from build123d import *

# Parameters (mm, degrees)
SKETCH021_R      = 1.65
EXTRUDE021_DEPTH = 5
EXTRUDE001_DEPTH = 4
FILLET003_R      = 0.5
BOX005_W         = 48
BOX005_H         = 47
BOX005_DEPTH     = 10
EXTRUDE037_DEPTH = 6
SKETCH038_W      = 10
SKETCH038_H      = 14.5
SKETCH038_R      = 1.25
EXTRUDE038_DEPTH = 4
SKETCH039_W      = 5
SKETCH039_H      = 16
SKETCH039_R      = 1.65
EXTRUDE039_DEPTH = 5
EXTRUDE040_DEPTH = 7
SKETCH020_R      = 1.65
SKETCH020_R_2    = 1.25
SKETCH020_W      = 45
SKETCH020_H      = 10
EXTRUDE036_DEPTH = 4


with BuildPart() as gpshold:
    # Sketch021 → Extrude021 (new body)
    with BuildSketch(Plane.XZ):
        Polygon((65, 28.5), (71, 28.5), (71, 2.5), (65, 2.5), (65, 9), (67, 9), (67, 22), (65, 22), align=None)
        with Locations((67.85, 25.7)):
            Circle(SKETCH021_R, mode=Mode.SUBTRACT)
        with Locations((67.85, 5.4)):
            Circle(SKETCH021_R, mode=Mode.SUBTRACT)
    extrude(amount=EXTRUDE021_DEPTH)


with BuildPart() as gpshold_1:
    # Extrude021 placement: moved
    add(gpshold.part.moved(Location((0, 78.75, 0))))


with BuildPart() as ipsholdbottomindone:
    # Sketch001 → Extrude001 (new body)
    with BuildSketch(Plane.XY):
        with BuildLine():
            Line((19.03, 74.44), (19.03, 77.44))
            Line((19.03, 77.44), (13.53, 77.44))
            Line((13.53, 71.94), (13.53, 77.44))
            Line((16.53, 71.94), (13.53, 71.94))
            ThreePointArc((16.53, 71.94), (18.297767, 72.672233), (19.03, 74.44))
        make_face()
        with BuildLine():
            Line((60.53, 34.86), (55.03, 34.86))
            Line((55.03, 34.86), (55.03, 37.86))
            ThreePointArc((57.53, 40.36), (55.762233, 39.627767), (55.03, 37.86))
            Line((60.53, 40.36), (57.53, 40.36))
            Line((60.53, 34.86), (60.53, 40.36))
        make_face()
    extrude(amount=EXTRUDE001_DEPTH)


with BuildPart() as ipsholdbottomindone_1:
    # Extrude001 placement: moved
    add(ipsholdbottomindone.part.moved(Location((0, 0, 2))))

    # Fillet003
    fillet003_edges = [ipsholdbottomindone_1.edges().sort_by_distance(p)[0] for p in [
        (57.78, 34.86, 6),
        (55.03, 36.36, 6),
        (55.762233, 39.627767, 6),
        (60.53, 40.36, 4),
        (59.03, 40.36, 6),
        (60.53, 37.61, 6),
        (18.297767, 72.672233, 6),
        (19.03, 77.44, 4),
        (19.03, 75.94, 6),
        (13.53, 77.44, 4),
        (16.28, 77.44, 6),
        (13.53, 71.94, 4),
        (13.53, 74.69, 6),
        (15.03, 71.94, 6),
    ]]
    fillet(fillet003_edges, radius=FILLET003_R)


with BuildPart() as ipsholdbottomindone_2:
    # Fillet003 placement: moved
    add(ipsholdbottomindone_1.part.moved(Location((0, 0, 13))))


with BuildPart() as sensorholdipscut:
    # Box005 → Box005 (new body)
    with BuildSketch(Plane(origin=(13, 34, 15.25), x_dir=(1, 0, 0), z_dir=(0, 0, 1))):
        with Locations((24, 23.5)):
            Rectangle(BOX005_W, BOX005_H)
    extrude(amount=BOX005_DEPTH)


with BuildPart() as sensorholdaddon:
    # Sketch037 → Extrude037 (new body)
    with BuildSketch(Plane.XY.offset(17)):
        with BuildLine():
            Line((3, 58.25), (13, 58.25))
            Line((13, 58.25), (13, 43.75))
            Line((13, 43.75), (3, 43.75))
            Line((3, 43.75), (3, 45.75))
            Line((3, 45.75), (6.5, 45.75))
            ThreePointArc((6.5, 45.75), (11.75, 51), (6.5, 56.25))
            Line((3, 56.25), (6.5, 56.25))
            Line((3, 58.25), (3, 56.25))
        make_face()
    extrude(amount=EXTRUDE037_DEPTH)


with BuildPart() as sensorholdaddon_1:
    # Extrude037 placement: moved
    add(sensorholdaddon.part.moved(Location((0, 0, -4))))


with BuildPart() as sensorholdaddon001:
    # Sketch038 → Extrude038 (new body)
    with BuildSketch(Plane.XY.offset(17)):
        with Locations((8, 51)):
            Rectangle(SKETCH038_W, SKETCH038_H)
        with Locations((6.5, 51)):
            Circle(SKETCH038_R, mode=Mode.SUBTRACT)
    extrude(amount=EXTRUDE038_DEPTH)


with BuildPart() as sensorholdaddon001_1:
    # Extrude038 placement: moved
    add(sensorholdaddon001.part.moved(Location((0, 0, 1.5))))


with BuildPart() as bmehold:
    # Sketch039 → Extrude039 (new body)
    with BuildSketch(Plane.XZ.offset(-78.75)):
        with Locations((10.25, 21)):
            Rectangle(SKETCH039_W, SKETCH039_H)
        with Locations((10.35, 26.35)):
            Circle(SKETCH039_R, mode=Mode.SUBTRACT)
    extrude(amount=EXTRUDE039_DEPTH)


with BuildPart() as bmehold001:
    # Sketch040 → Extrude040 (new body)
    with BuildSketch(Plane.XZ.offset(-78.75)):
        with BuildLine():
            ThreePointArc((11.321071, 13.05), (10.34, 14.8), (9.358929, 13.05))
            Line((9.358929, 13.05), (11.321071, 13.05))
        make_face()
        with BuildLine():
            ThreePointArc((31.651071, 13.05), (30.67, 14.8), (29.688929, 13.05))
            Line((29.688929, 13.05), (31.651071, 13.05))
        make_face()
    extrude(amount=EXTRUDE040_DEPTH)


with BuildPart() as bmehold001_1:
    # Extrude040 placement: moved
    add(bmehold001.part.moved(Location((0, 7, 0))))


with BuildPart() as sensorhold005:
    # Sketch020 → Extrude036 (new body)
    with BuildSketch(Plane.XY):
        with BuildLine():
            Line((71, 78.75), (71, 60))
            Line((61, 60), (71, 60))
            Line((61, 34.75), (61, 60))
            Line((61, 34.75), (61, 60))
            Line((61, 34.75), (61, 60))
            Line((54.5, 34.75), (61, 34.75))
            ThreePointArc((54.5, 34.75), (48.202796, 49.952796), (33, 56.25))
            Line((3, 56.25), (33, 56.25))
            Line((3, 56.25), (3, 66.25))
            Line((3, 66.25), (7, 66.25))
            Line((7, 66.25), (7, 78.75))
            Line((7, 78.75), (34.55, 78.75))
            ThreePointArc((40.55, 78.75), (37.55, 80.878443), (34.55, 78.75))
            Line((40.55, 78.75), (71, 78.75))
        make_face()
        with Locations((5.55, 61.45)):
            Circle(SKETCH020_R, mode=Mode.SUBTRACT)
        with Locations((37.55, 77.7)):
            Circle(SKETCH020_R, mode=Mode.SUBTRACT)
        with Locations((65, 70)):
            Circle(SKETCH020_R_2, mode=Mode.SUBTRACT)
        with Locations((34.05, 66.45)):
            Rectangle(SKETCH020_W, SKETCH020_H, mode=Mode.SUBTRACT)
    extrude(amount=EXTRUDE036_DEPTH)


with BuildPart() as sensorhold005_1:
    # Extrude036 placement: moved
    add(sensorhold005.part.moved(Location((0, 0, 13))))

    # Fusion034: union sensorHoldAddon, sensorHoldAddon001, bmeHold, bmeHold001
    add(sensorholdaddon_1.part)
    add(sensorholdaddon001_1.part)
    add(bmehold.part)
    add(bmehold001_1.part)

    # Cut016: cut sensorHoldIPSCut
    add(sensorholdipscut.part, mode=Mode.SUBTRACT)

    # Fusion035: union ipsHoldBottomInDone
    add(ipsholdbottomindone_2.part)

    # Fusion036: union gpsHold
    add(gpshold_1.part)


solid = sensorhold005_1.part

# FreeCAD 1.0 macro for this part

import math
import FreeCAD as App
import Part
import Sketcher

V = App.Vector


def edges_at(feature, points):
    """Names of the edges that pass closest to the given points."""
    edges = feature.Shape.Edges
    near = lambda p: min(range(len(edges)), key=lambda i: edges[i].distToShape(Part.Vertex(*p))[0])
    return sorted({f"Edge{near(p) + 1}" for p in points})


def add_polygon(sketch, points):
    """Adds a closed chain of lines whose ends are joined by coincident constraints."""
    first, n = sketch.GeometryCount, len(points)
    for a, b in zip(points, points[1:] + points[:1]):
        sketch.addGeometry(Part.LineSegment(App.Vector(*a, 0), App.Vector(*b, 0)), False)
    for i in range(n):
        sketch.addConstraint(Sketcher.Constraint("Coincident", first + i, 2, first + (i + 1) % n, 1))

doc = App.newDocument("Part")
params = doc.addObject("Spreadsheet::Sheet", "Params")
for row, (alias, value) in enumerate([
    ("sketch1_diameter", "3.3 mm"),
    ("sketch1_width", "6 mm"),
    ("sketch1_width2", "2 mm"),
    ("sketch1_height", "13 mm"),
    ("sketch1_height2", "26 mm"),
    ("pad1_length", "5 mm"),
    ("sketch2_radius", "2.5 mm"),
    ("sketch2_width", "3 mm"),
    ("pad2_length", "4 mm"),
    ("fillet_radius", "0.5 mm"),
    ("sketch3_width", "48 mm"),
    ("sketch3_height", "47 mm"),
    ("pad3_length", "10 mm"),
    ("sketch4_width", "10 mm"),
    ("sketch4_height", "2 mm"),
    ("sketch4_radius", "5.25 mm"),
    ("sketch4_width2", "3.5 mm"),
    ("pad4_length", "6 mm"),
    ("sketch5_diameter", "2.5 mm"),
    ("sketch5_width", "10 mm"),
    ("sketch5_height", "14.5 mm"),
    ("pad5_length", "4 mm"),
    ("sketch6_diameter", "3.3 mm"),
    ("sketch6_width", "5 mm"),
    ("sketch6_height", "16 mm"),
    ("pad6_length", "5 mm"),
    ("sketch7_radius", "1.15 mm"),
    ("sketch7_height", "0.6 mm"),
    ("pad7_length", "7 mm"),
    ("sketch8_diameter", "3.3 mm"),
    ("sketch8_diameter2", "2.5 mm"),
    ("sketch8_radius", "21.499999 mm"),
    ("sketch8_width", "4 mm"),
    ("sketch8_width2", "30 mm"),
    ("pad8_length", "4 mm"),
], start=1):
    params.set(f"A{row}", alias)
    params.set(f"B{row}", "=" + value)
    params.setAlias(f"B{row}", alias)

body = doc.addObject("PartDesign::Body", "Body")

sketch1 = body.newObject("Sketcher::SketchObject", "Sketch")
sketch1.AttachmentSupport = (doc.getObject("XZ_Plane"), [""])
sketch1.MapMode = "FlatFace"
add_polygon(sketch1, [(71, 28.5), (65, 28.5), (65, 22), (67, 22), (67, 9), (65, 9), (65, 2.5), (71, 2.5)])
sketch1.addGeometry(Part.Circle(V(67.8, 5.4, 0), V(0, 0, 1), 1.6), False)
sketch1.addGeometry(Part.Circle(V(67.8, 25.7, 0), V(0, 0, 1), 1.6), False)
sketch1.addConstraint(Sketcher.Constraint("Horizontal", 0))
sketch1.addConstraint(Sketcher.Constraint("Vertical", 1))
sketch1.addConstraint(Sketcher.Constraint("Horizontal", 2))
sketch1.addConstraint(Sketcher.Constraint("Vertical", 3))
sketch1.addConstraint(Sketcher.Constraint("Horizontal", 4))
sketch1.addConstraint(Sketcher.Constraint("Vertical", 5))
sketch1.addConstraint(Sketcher.Constraint("Horizontal", 6))
sketch1.addConstraint(Sketcher.Constraint("Vertical", 7))
sketch1.addConstraint(Sketcher.Constraint("Equal", 8, 9))
sketch1.addConstraint(Sketcher.Constraint("Vertical", 8, 3, 9, 3))
sketch1.addConstraint(Sketcher.Constraint("Vertical", 1, 2, 4, 2))
sketch1.addConstraint(Sketcher.Constraint("Equal", 1, 5))
sketch1.addConstraint(Sketcher.Constraint("Diameter", 8, 3.3))
sketch1.addConstraint(Sketcher.Constraint("DistanceX", 0, 2, 0, 1, 6.0))
sketch1.addConstraint(Sketcher.Constraint("DistanceX", 2, 1, 2, 2, 2.0))
sketch1.addConstraint(Sketcher.Constraint("DistanceY", 3, 2, 3, 1, 13.0))
sketch1.addConstraint(Sketcher.Constraint("DistanceY", 7, 1, 7, 2, 26.0))
sketch1.addConstraint(Sketcher.Constraint("DistanceX", -1, 1, 0, 2, 65.0))
sketch1.addConstraint(Sketcher.Constraint("DistanceY", -1, 1, 1, 2, 22.0))
sketch1.addConstraint(Sketcher.Constraint("DistanceY", -1, 1, 8, 3, 5.4))
sketch1.addConstraint(Sketcher.Constraint("DistanceY", -1, 1, 9, 3, 25.7))
sketch1.addConstraint(Sketcher.Constraint("DistanceX", -1, 1, 8, 3, 67.85))
sketch1.setExpression("Constraints[20]", "Params.sketch1_diameter")
sketch1.setExpression("Constraints[21]", "Params.sketch1_width")
sketch1.setExpression("Constraints[22]", "Params.sketch1_width2")
sketch1.setExpression("Constraints[23]", "Params.sketch1_height")
sketch1.setExpression("Constraints[24]", "Params.sketch1_height2")
pad1 = body.newObject("PartDesign::Pad", "Pad")
pad1.Profile = sketch1
pad1.setExpression("Length", "Params.pad1_length")
body2 = doc.addObject("PartDesign::Body", "Body001")
doc.recompute()

body.Placement = App.Placement(V(0, 78.75, 0), App.Rotation(V(0, 0, 1), 0))
boolean = body2.newObject("PartDesign::Boolean", "Boolean")
boolean.Type = "Fuse"
boolean.addObjects([body])
body3 = doc.addObject("PartDesign::Body", "Body002")
body3.AllowCompound = True

sketch2 = body3.newObject("Sketcher::SketchObject", "Sketch001")
sketch2.AttachmentSupport = (doc.getObject("XY_Plane002"), [""])
sketch2.MapMode = "FlatFace"
sketch2.addGeometry(Part.LineSegment(V(19, 74.4, 0), V(19, 77.4, 0)), False)
sketch2.addGeometry(Part.LineSegment(V(19, 77.4, 0), V(13.5, 77.4, 0)), False)
sketch2.addGeometry(Part.LineSegment(V(13.5, 77.4, 0), V(13.5, 71.9, 0)), False)
sketch2.addGeometry(Part.LineSegment(V(13.5, 71.9, 0), V(16.5, 71.9, 0)), False)
sketch2.addGeometry(Part.ArcOfCircle(Part.Circle(V(16.5, 74.4, 0), V(0, 0, 1), 2.5), math.radians(-90), math.radians(0)), False)
sketch2.addGeometry(Part.LineSegment(V(55, 34.9, 0), V(60.5, 34.9, 0)), False)
sketch2.addGeometry(Part.LineSegment(V(60.5, 34.9, 0), V(60.5, 40.4, 0)), False)
sketch2.addGeometry(Part.LineSegment(V(60.5, 40.4, 0), V(57.5, 40.4, 0)), False)
sketch2.addGeometry(Part.ArcOfCircle(Part.Circle(V(57.5, 37.9, 0), V(0, 0, 1), 2.5), math.radians(90), math.radians(180)), False)
sketch2.addGeometry(Part.LineSegment(V(55, 37.9, 0), V(55, 34.9, 0)), False)
sketch2.addConstraint(Sketcher.Constraint("Coincident", 0, 2, 1, 1))
sketch2.addConstraint(Sketcher.Constraint("Coincident", 1, 2, 2, 1))
sketch2.addConstraint(Sketcher.Constraint("Coincident", 2, 2, 3, 1))
sketch2.addConstraint(Sketcher.Constraint("Tangent", 3, 2, 4, 1))
sketch2.addConstraint(Sketcher.Constraint("Tangent", 4, 2, 0, 1))
sketch2.addConstraint(Sketcher.Constraint("Coincident", 5, 2, 6, 1))
sketch2.addConstraint(Sketcher.Constraint("Coincident", 6, 2, 7, 1))
sketch2.addConstraint(Sketcher.Constraint("Tangent", 7, 2, 8, 1))
sketch2.addConstraint(Sketcher.Constraint("Tangent", 8, 2, 9, 1))
sketch2.addConstraint(Sketcher.Constraint("Coincident", 9, 2, 5, 1))
sketch2.addConstraint(Sketcher.Constraint("Vertical", 0))
sketch2.addConstraint(Sketcher.Constraint("Horizontal", 1))
sketch2.addConstraint(Sketcher.Constraint("Vertical", 2))
sketch2.addConstraint(Sketcher.Constraint("Horizontal", 3))
sketch2.addConstraint(Sketcher.Constraint("Horizontal", 5))
sketch2.addConstraint(Sketcher.Constraint("Vertical", 6))
sketch2.addConstraint(Sketcher.Constraint("Horizontal", 7))
sketch2.addConstraint(Sketcher.Constraint("Vertical", 9))
sketch2.addConstraint(Sketcher.Constraint("Equal", 4, 8))
sketch2.addConstraint(Sketcher.Constraint("Equal", 1, 5))
sketch2.addConstraint(Sketcher.Constraint("Equal", 7, 0))
sketch2.addConstraint(Sketcher.Constraint("Equal", 2, 6))
sketch2.addConstraint(Sketcher.Constraint("Radius", 4, 2.5))
sketch2.addConstraint(Sketcher.Constraint("DistanceX", 3, 1, 3, 2, 3.0))
sketch2.addConstraint(Sketcher.Constraint("DistanceX", 4, 3, 8, 3, 41.0))
sketch2.addConstraint(Sketcher.Constraint("DistanceX", -1, 1, 4, 3, 16.53))
sketch2.addConstraint(Sketcher.Constraint("DistanceY", -1, 1, 4, 3, 74.44))
sketch2.addConstraint(Sketcher.Constraint("DistanceY", -1, 1, 8, 3, 37.86))
sketch2.setExpression("Constraints[22]", "Params.sketch2_radius")
sketch2.setExpression("Constraints[23]", "Params.sketch2_width")
pad2 = body3.newObject("PartDesign::Pad", "Pad001")
pad2.Profile = sketch2
pad2.setExpression("Length", "Params.pad2_length")
body4 = doc.addObject("PartDesign::Body", "Body003")
body4.AllowCompound = True
doc.recompute()

body3.Placement = App.Placement(V(0, 0, 2), App.Rotation(V(0, 0, 1), 0))
boolean2 = body4.newObject("PartDesign::Boolean", "Boolean001")
boolean2.Type = "Fuse"
boolean2.addObjects([body3])
doc.recompute()

fillet = body4.newObject("PartDesign::Fillet", "Fillet")
fillet.Base = (boolean2, edges_at(boolean2, [
    (57.78, 34.86, 6),
    (55.03, 36.36, 6),
    (55.762, 39.628, 6),
    (60.53, 40.36, 4),
    (59.03, 40.36, 6),
    (60.53, 37.61, 6),
    (18.298, 72.672, 6),
    (19.03, 77.44, 4),
    (19.03, 75.94, 6),
    (13.53, 77.44, 4),
    (16.28, 77.44, 6),
    (13.53, 71.94, 4),
    (13.53, 74.69, 6),
    (15.03, 71.94, 6),
]))
fillet.setExpression("Radius", "Params.fillet_radius")
body5 = doc.addObject("PartDesign::Body", "Body004")
body5.AllowCompound = True
doc.recompute()

body4.Placement = App.Placement(V(0, 0, 13), App.Rotation(V(0, 0, 1), 0))
boolean3 = body5.newObject("PartDesign::Boolean", "Boolean002")
boolean3.Type = "Fuse"
boolean3.addObjects([body4])
body6 = doc.addObject("PartDesign::Body", "Body005")

sketch3 = body6.newObject("Sketcher::SketchObject", "Sketch002")
sketch3.AttachmentSupport = (doc.getObject("XY_Plane005"), [""])
sketch3.MapMode = "FlatFace"
sketch3.AttachmentOffset = App.Placement(V(0, 0, 15.25), App.Rotation())
add_polygon(sketch3, [(13, 81), (13, 34), (61, 34), (61, 81)])
sketch3.addConstraint(Sketcher.Constraint("Vertical", 0))
sketch3.addConstraint(Sketcher.Constraint("Horizontal", 1))
sketch3.addConstraint(Sketcher.Constraint("Vertical", 2))
sketch3.addConstraint(Sketcher.Constraint("Horizontal", 3))
sketch3.addConstraint(Sketcher.Constraint("DistanceX", 1, 1, 1, 2, 48.0))
sketch3.addConstraint(Sketcher.Constraint("DistanceY", 0, 2, 0, 1, 47.0))
sketch3.addConstraint(Sketcher.Constraint("DistanceX", -1, 1, 0, 2, 13.0))
sketch3.addConstraint(Sketcher.Constraint("DistanceY", -1, 1, 0, 2, 34.0))
sketch3.setExpression("Constraints[8]", "Params.sketch3_width")
sketch3.setExpression("Constraints[9]", "Params.sketch3_height")
pad3 = body6.newObject("PartDesign::Pad", "Pad002")
pad3.Profile = sketch3
pad3.setExpression("Length", "Params.pad3_length")
body7 = doc.addObject("PartDesign::Body", "Body006")

sketch4 = body7.newObject("Sketcher::SketchObject", "Sketch003")
sketch4.AttachmentSupport = (doc.getObject("XY_Plane006"), [""])
sketch4.MapMode = "FlatFace"
sketch4.AttachmentOffset = App.Placement(V(0, 0, 17), App.Rotation())
sketch4.addGeometry(Part.LineSegment(V(13, 58.2, 0), V(3, 58.2, 0)), False)
sketch4.addGeometry(Part.LineSegment(V(3, 58.2, 0), V(3, 56.2, 0)), False)
sketch4.addGeometry(Part.LineSegment(V(3, 56.2, 0), V(6.5, 56.2, 0)), False)
sketch4.addGeometry(Part.ArcOfCircle(Part.Circle(V(6.5, 51, 0), V(0, 0, 1), 5.2), math.radians(-90), math.radians(90)), False)
sketch4.addGeometry(Part.LineSegment(V(6.5, 45.8, 0), V(3, 45.8, 0)), False)
sketch4.addGeometry(Part.LineSegment(V(3, 45.8, 0), V(3, 43.8, 0)), False)
sketch4.addGeometry(Part.LineSegment(V(3, 43.8, 0), V(13, 43.8, 0)), False)
sketch4.addGeometry(Part.LineSegment(V(13, 43.8, 0), V(13, 58.2, 0)), False)
sketch4.addConstraint(Sketcher.Constraint("Coincident", 0, 2, 1, 1))
sketch4.addConstraint(Sketcher.Constraint("Coincident", 1, 2, 2, 1))
sketch4.addConstraint(Sketcher.Constraint("Tangent", 2, 2, 3, 2))
sketch4.addConstraint(Sketcher.Constraint("Tangent", 3, 1, 4, 1))
sketch4.addConstraint(Sketcher.Constraint("Coincident", 4, 2, 5, 1))
sketch4.addConstraint(Sketcher.Constraint("Coincident", 5, 2, 6, 1))
sketch4.addConstraint(Sketcher.Constraint("Coincident", 6, 2, 7, 1))
sketch4.addConstraint(Sketcher.Constraint("Coincident", 7, 2, 0, 1))
sketch4.addConstraint(Sketcher.Constraint("Horizontal", 0))
sketch4.addConstraint(Sketcher.Constraint("Vertical", 1))
sketch4.addConstraint(Sketcher.Constraint("Horizontal", 2))
sketch4.addConstraint(Sketcher.Constraint("Horizontal", 4))
sketch4.addConstraint(Sketcher.Constraint("Vertical", 5))
sketch4.addConstraint(Sketcher.Constraint("Horizontal", 6))
sketch4.addConstraint(Sketcher.Constraint("Vertical", 7))
sketch4.addConstraint(Sketcher.Constraint("Vertical", 1, 2, 4, 2))
sketch4.addConstraint(Sketcher.Constraint("Equal", 1, 5))
sketch4.addConstraint(Sketcher.Constraint("DistanceX", 0, 2, 0, 1, 10.0))
sketch4.addConstraint(Sketcher.Constraint("DistanceY", 1, 2, 1, 1, 2.0))
sketch4.addConstraint(Sketcher.Constraint("Radius", 3, 5.25))
sketch4.addConstraint(Sketcher.Constraint("DistanceX", 2, 1, 2, 2, 3.5))
sketch4.addConstraint(Sketcher.Constraint("DistanceY", -1, 1, 3, 3, 51.0))
sketch4.addConstraint(Sketcher.Constraint("DistanceX", -1, 1, 0, 2, 3.0))
sketch4.setExpression("Constraints[17]", "Params.sketch4_width")
sketch4.setExpression("Constraints[18]", "Params.sketch4_height")
sketch4.setExpression("Constraints[19]", "Params.sketch4_radius")
sketch4.setExpression("Constraints[20]", "Params.sketch4_width2")
pad4 = body7.newObject("PartDesign::Pad", "Pad003")
pad4.Profile = sketch4
pad4.setExpression("Length", "Params.pad4_length")
body8 = doc.addObject("PartDesign::Body", "Body007")
doc.recompute()

body7.Placement = App.Placement(V(0, 0, -4), App.Rotation(V(0, 0, 1), 0))
boolean4 = body8.newObject("PartDesign::Boolean", "Boolean003")
boolean4.Type = "Fuse"
boolean4.addObjects([body7])
body9 = doc.addObject("PartDesign::Body", "Body008")

sketch5 = body9.newObject("Sketcher::SketchObject", "Sketch004")
sketch5.AttachmentSupport = (doc.getObject("XY_Plane008"), [""])
sketch5.MapMode = "FlatFace"
sketch5.AttachmentOffset = App.Placement(V(0, 0, 17), App.Rotation())
add_polygon(sketch5, [(3, 58.2), (3, 43.8), (13, 43.8), (13, 58.2)])
sketch5.addGeometry(Part.Circle(V(6.5, 51, 0), V(0, 0, 1), 1.2), False)
sketch5.addConstraint(Sketcher.Constraint("Vertical", 0))
sketch5.addConstraint(Sketcher.Constraint("Horizontal", 1))
sketch5.addConstraint(Sketcher.Constraint("Vertical", 2))
sketch5.addConstraint(Sketcher.Constraint("Horizontal", 3))
sketch5.addConstraint(Sketcher.Constraint("Diameter", 4, 2.5))
sketch5.addConstraint(Sketcher.Constraint("DistanceX", 1, 1, 1, 2, 10.0))
sketch5.addConstraint(Sketcher.Constraint("DistanceY", 0, 2, 0, 1, 14.5))
sketch5.addConstraint(Sketcher.Constraint("DistanceY", -1, 1, 4, 3, 51.0))
sketch5.addConstraint(Sketcher.Constraint("DistanceX", -1, 1, 0, 2, 3.0))
sketch5.addConstraint(Sketcher.Constraint("DistanceX", -1, 1, 4, 3, 6.5))
sketch5.addConstraint(Sketcher.Constraint("DistanceY", -1, 1, 0, 2, 43.75))
sketch5.setExpression("Constraints[8]", "Params.sketch5_diameter")
sketch5.setExpression("Constraints[9]", "Params.sketch5_width")
sketch5.setExpression("Constraints[10]", "Params.sketch5_height")
pad5 = body9.newObject("PartDesign::Pad", "Pad004")
pad5.Profile = sketch5
pad5.setExpression("Length", "Params.pad5_length")
body10 = doc.addObject("PartDesign::Body", "Body009")
doc.recompute()

body9.Placement = App.Placement(V(0, 0, 1.5), App.Rotation(V(0, 0, 1), 0))
boolean5 = body10.newObject("PartDesign::Boolean", "Boolean004")
boolean5.Type = "Fuse"
boolean5.addObjects([body9])
body11 = doc.addObject("PartDesign::Body", "Body010")

sketch6 = body11.newObject("Sketcher::SketchObject", "Sketch005")
sketch6.AttachmentSupport = (doc.getObject("XZ_Plane010"), [""])
sketch6.MapMode = "FlatFace"
sketch6.AttachmentOffset = App.Placement(V(0, 0, -78.75), App.Rotation())
add_polygon(sketch6, [(7.8, 29), (7.8, 13), (12.8, 13), (12.8, 29)])
sketch6.addGeometry(Part.Circle(V(10.3, 26.4, 0), V(0, 0, 1), 1.6), False)
sketch6.addConstraint(Sketcher.Constraint("Vertical", 0))
sketch6.addConstraint(Sketcher.Constraint("Horizontal", 1))
sketch6.addConstraint(Sketcher.Constraint("Vertical", 2))
sketch6.addConstraint(Sketcher.Constraint("Horizontal", 3))
sketch6.addConstraint(Sketcher.Constraint("Diameter", 4, 3.3))
sketch6.addConstraint(Sketcher.Constraint("DistanceX", 1, 1, 1, 2, 5.0))
sketch6.addConstraint(Sketcher.Constraint("DistanceY", 0, 2, 0, 1, 16.0))
sketch6.addConstraint(Sketcher.Constraint("DistanceY", -1, 1, 0, 2, 13.0))
sketch6.addConstraint(Sketcher.Constraint("DistanceX", 0, 2, 4, 3, 2.6))
sketch6.addConstraint(Sketcher.Constraint("DistanceX", -1, 1, 4, 3, 10.35))
sketch6.addConstraint(Sketcher.Constraint("DistanceY", -1, 1, 4, 3, 26.35))
sketch6.setExpression("Constraints[8]", "Params.sketch6_diameter")
sketch6.setExpression("Constraints[9]", "Params.sketch6_width")
sketch6.setExpression("Constraints[10]", "Params.sketch6_height")
pad6 = body11.newObject("PartDesign::Pad", "Pad005")
pad6.Profile = sketch6
pad6.setExpression("Length", "Params.pad6_length")
body12 = doc.addObject("PartDesign::Body", "Body011")
body12.AllowCompound = True

sketch7 = body12.newObject("Sketcher::SketchObject", "Sketch006")
sketch7.AttachmentSupport = (doc.getObject("XZ_Plane011"), [""])
sketch7.MapMode = "FlatFace"
sketch7.AttachmentOffset = App.Placement(V(0, 0, -78.75), App.Rotation())
sketch7.addGeometry(Part.ArcOfCircle(Part.Circle(V(10.3, 13.6, 0), V(0, 0, 1), 1.2), math.radians(-31), math.radians(211)), False)
sketch7.addGeometry(Part.LineSegment(V(9.4, 13.1, 0), V(11.3, 13.1, 0)), False)
sketch7.addGeometry(Part.ArcOfCircle(Part.Circle(V(30.7, 13.6, 0), V(0, 0, 1), 1.2), math.radians(-31), math.radians(211)), False)
sketch7.addGeometry(Part.LineSegment(V(29.7, 13.1, 0), V(31.7, 13.1, 0)), False)
sketch7.addConstraint(Sketcher.Constraint("Coincident", 0, 1, 1, 2))
sketch7.addConstraint(Sketcher.Constraint("Coincident", 1, 1, 0, 2))
sketch7.addConstraint(Sketcher.Constraint("Coincident", 2, 1, 3, 2))
sketch7.addConstraint(Sketcher.Constraint("Coincident", 3, 1, 2, 2))
sketch7.addConstraint(Sketcher.Constraint("Horizontal", 1))
sketch7.addConstraint(Sketcher.Constraint("Horizontal", 3))
sketch7.addConstraint(Sketcher.Constraint("Equal", 0, 2))
sketch7.addConstraint(Sketcher.Constraint("Horizontal", 0, 3, 2, 3))
sketch7.addConstraint(Sketcher.Constraint("Horizontal", 1, 1, 2, 1))
sketch7.addConstraint(Sketcher.Constraint("Radius", 0, 1.15))
sketch7.addConstraint(Sketcher.Constraint("DistanceY", 0, 1, 0, 3, 0.6))
sketch7.addConstraint(Sketcher.Constraint("DistanceX", -1, 1, 0, 3, 10.34))
sketch7.addConstraint(Sketcher.Constraint("DistanceY", -1, 1, 0, 3, 13.65))
sketch7.addConstraint(Sketcher.Constraint("DistanceX", -1, 1, 2, 3, 30.67))
sketch7.setExpression("Constraints[9]", "Params.sketch7_radius")
sketch7.setExpression("Constraints[10]", "Params.sketch7_height")
pad7 = body12.newObject("PartDesign::Pad", "Pad006")
pad7.Profile = sketch7
pad7.setExpression("Length", "Params.pad7_length")
body13 = doc.addObject("PartDesign::Body", "Body012")
body13.AllowCompound = True
doc.recompute()

body12.Placement = App.Placement(V(0, 7, 0), App.Rotation(V(0, 0, 1), 0))
boolean6 = body13.newObject("PartDesign::Boolean", "Boolean005")
boolean6.Type = "Fuse"
boolean6.addObjects([body12])
body14 = doc.addObject("PartDesign::Body", "Body013")

sketch8 = body14.newObject("Sketcher::SketchObject", "Sketch007")
sketch8.AttachmentSupport = (doc.getObject("XY_Plane013"), [""])
sketch8.MapMode = "FlatFace"
sketch8.addGeometry(Part.LineSegment(V(71, 60, 0), V(71, 78.8, 0)), False)
sketch8.addGeometry(Part.LineSegment(V(71, 78.8, 0), V(40.5, 78.8, 0)), False)
sketch8.addGeometry(Part.ArcOfCircle(Part.Circle(V(37.5, 77.7, 0), V(0, 0, 1), 3.2), math.radians(19), math.radians(161)), False)
sketch8.addGeometry(Part.LineSegment(V(34.5, 78.8, 0), V(7, 78.8, 0)), False)
sketch8.addGeometry(Part.LineSegment(V(7, 78.8, 0), V(7, 66.2, 0)), False)
sketch8.addGeometry(Part.LineSegment(V(7, 66.2, 0), V(3, 66.2, 0)), False)
sketch8.addGeometry(Part.LineSegment(V(3, 66.2, 0), V(3, 56.2, 0)), False)
sketch8.addGeometry(Part.LineSegment(V(3, 56.2, 0), V(33, 56.2, 0)), False)
sketch8.addGeometry(Part.ArcOfCircle(Part.Circle(V(33, 34.8, 0), V(0, 0, 1), 21.5), math.radians(0), math.radians(90)), False)
sketch8.addGeometry(Part.LineSegment(V(54.5, 34.8, 0), V(61, 34.8, 0)), False)
sketch8.addGeometry(Part.LineSegment(V(61, 34.8, 0), V(61, 60, 0)), False)
sketch8.addGeometry(Part.LineSegment(V(61, 60, 0), V(71, 60, 0)), False)
sketch8.addGeometry(Part.Circle(V(5.5, 61.5, 0), V(0, 0, 1), 1.6), False)
add_polygon(sketch8, [(11.6, 61.5), (11.6, 71.5), (56.5, 71.5), (56.5, 61.5)])
sketch8.addGeometry(Part.Circle(V(65, 70, 0), V(0, 0, 1), 1.2), False)
sketch8.addGeometry(Part.Circle(V(37.5, 77.7, 0), V(0, 0, 1), 1.6), False)
sketch8.addConstraint(Sketcher.Constraint("Coincident", 0, 2, 1, 1))
sketch8.addConstraint(Sketcher.Constraint("Coincident", 1, 2, 2, 1))
sketch8.addConstraint(Sketcher.Constraint("Coincident", 2, 2, 3, 1))
sketch8.addConstraint(Sketcher.Constraint("Coincident", 3, 2, 4, 1))
sketch8.addConstraint(Sketcher.Constraint("Coincident", 4, 2, 5, 1))
sketch8.addConstraint(Sketcher.Constraint("Coincident", 5, 2, 6, 1))
sketch8.addConstraint(Sketcher.Constraint("Coincident", 6, 2, 7, 1))
sketch8.addConstraint(Sketcher.Constraint("Tangent", 7, 2, 8, 2))
sketch8.addConstraint(Sketcher.Constraint("Coincident", 8, 1, 9, 1))
sketch8.addConstraint(Sketcher.Constraint("Coincident", 9, 2, 10, 1))
sketch8.addConstraint(Sketcher.Constraint("Coincident", 10, 2, 11, 1))
sketch8.addConstraint(Sketcher.Constraint("Coincident", 11, 2, 0, 1))
sketch8.addConstraint(Sketcher.Constraint("Vertical", 0))
sketch8.addConstraint(Sketcher.Constraint("Horizontal", 1))
sketch8.addConstraint(Sketcher.Constraint("Horizontal", 3))
sketch8.addConstraint(Sketcher.Constraint("Vertical", 4))
sketch8.addConstraint(Sketcher.Constraint("Horizontal", 5))
sketch8.addConstraint(Sketcher.Constraint("Vertical", 6))
sketch8.addConstraint(Sketcher.Constraint("Horizontal", 7))
sketch8.addConstraint(Sketcher.Constraint("Horizontal", 9))
sketch8.addConstraint(Sketcher.Constraint("Vertical", 10))
sketch8.addConstraint(Sketcher.Constraint("Horizontal", 11))
sketch8.addConstraint(Sketcher.Constraint("Vertical", 13))
sketch8.addConstraint(Sketcher.Constraint("Horizontal", 14))
sketch8.addConstraint(Sketcher.Constraint("Vertical", 15))
sketch8.addConstraint(Sketcher.Constraint("Horizontal", 16))
sketch8.addConstraint(Sketcher.Constraint("Coincident", 18, 3, 2, 3))
sketch8.addConstraint(Sketcher.Constraint("Equal", 12, 18))
sketch8.addConstraint(Sketcher.Constraint("Horizontal", 1, 2, 2, 2))
sketch8.addConstraint(Sketcher.Constraint("Horizontal", 12, 3, 15, 2))
sketch8.addConstraint(Sketcher.Constraint("Equal", 11, 6))
sketch8.addConstraint(Sketcher.Constraint("Equal", 6, 13))
sketch8.addConstraint(Sketcher.Constraint("Diameter", 12, 3.3))
sketch8.addConstraint(Sketcher.Constraint("Diameter", 17, 2.5))
sketch8.addConstraint(Sketcher.Constraint("Radius", 8, 21.499999))
sketch8.addConstraint(Sketcher.Constraint("DistanceX", 5, 2, 5, 1, 4.0))
sketch8.addConstraint(Sketcher.Constraint("DistanceX", 7, 1, 7, 2, 30.0))
sketch8.addConstraint(Sketcher.Constraint("DistanceX", 11, 1, 11, 2, 10.0))
sketch8.addConstraint(Sketcher.Constraint("DistanceX", 14, 1, 14, 2, 45.0))
sketch8.addConstraint(Sketcher.Constraint("DistanceX", 9, 1, 9, 2, 6.5))
sketch8.addConstraint(Sketcher.Constraint("DistanceY", 4, 2, 4, 1, 12.5))
sketch8.addConstraint(Sketcher.Constraint("DistanceX", -1, 1, 8, 3, 33.000001))
sketch8.addConstraint(Sketcher.Constraint("DistanceX", -1, 1, 17, 3, 65.0))
sketch8.addConstraint(Sketcher.Constraint("DistanceY", -1, 1, 17, 3, 70.0))
sketch8.addConstraint(Sketcher.Constraint("DistanceY", -1, 1, 10, 2, 60.0))
sketch8.addConstraint(Sketcher.Constraint("DistanceX", 12, 3, 2, 3, 32.0))
sketch8.addConstraint(Sketcher.Constraint("DistanceX", 18, 3, 1, 2, 3.0))
sketch8.addConstraint(Sketcher.Constraint("DistanceY", 8, 1, 1, 2, 44.0))
sketch8.addConstraint(Sketcher.Constraint("DistanceX", 12, 3, 13, 2, 6.0))
sketch8.addConstraint(Sketcher.Constraint("DistanceX", 1, 2, 1, 1, 30.45))
sketch8.addConstraint(Sketcher.Constraint("DistanceY", 0, 1, 0, 2, 18.75))
sketch8.addConstraint(Sketcher.Constraint("DistanceY", -1, 1, 2, 3, 77.7))
sketch8.addConstraint(Sketcher.Constraint("DistanceY", 8, 3, 12, 3, 26.699999))
sketch8.setExpression("Constraints[36]", "Params.sketch8_diameter")
sketch8.setExpression("Constraints[37]", "Params.sketch8_diameter2")
sketch8.setExpression("Constraints[38]", "Params.sketch8_radius")
sketch8.setExpression("Constraints[39]", "Params.sketch8_width")
sketch8.setExpression("Constraints[40]", "Params.sketch8_width2")
pad8 = body14.newObject("PartDesign::Pad", "Pad007")
pad8.Profile = sketch8
pad8.setExpression("Length", "Params.pad8_length")
body15 = doc.addObject("PartDesign::Body", "Body014")
doc.recompute()

body14.Placement = App.Placement(V(0, 0, 13), App.Rotation(V(0, 0, 1), 0))
boolean7 = body15.newObject("PartDesign::Boolean", "Boolean006")
boolean7.Type = "Fuse"
boolean7.addObjects([body14])
doc.recompute()

boolean8 = body15.newObject("PartDesign::Boolean", "Boolean007")
boolean8.Type = "Fuse"
boolean8.addObjects([body8])
doc.recompute()

boolean9 = body15.newObject("PartDesign::Boolean", "Boolean008")
boolean9.Type = "Fuse"
boolean9.addObjects([body10])
doc.recompute()

boolean10 = body15.newObject("PartDesign::Boolean", "Boolean009")
boolean10.Type = "Fuse"
boolean10.addObjects([body11])
doc.recompute()

boolean11 = body15.newObject("PartDesign::Boolean", "Boolean010")
boolean11.Type = "Fuse"
boolean11.addObjects([body13])
doc.recompute()

boolean12 = body15.newObject("PartDesign::Boolean", "Boolean011")
boolean12.Type = "Cut"
boolean12.addObjects([body6])
doc.recompute()

boolean13 = body15.newObject("PartDesign::Boolean", "Boolean012")
boolean13.Type = "Fuse"
boolean13.addObjects([body5])
doc.recompute()

boolean14 = body15.newObject("PartDesign::Boolean", "Boolean013")
boolean14.Type = "Fuse"
boolean14.addObjects([body2])

doc.recompute()
